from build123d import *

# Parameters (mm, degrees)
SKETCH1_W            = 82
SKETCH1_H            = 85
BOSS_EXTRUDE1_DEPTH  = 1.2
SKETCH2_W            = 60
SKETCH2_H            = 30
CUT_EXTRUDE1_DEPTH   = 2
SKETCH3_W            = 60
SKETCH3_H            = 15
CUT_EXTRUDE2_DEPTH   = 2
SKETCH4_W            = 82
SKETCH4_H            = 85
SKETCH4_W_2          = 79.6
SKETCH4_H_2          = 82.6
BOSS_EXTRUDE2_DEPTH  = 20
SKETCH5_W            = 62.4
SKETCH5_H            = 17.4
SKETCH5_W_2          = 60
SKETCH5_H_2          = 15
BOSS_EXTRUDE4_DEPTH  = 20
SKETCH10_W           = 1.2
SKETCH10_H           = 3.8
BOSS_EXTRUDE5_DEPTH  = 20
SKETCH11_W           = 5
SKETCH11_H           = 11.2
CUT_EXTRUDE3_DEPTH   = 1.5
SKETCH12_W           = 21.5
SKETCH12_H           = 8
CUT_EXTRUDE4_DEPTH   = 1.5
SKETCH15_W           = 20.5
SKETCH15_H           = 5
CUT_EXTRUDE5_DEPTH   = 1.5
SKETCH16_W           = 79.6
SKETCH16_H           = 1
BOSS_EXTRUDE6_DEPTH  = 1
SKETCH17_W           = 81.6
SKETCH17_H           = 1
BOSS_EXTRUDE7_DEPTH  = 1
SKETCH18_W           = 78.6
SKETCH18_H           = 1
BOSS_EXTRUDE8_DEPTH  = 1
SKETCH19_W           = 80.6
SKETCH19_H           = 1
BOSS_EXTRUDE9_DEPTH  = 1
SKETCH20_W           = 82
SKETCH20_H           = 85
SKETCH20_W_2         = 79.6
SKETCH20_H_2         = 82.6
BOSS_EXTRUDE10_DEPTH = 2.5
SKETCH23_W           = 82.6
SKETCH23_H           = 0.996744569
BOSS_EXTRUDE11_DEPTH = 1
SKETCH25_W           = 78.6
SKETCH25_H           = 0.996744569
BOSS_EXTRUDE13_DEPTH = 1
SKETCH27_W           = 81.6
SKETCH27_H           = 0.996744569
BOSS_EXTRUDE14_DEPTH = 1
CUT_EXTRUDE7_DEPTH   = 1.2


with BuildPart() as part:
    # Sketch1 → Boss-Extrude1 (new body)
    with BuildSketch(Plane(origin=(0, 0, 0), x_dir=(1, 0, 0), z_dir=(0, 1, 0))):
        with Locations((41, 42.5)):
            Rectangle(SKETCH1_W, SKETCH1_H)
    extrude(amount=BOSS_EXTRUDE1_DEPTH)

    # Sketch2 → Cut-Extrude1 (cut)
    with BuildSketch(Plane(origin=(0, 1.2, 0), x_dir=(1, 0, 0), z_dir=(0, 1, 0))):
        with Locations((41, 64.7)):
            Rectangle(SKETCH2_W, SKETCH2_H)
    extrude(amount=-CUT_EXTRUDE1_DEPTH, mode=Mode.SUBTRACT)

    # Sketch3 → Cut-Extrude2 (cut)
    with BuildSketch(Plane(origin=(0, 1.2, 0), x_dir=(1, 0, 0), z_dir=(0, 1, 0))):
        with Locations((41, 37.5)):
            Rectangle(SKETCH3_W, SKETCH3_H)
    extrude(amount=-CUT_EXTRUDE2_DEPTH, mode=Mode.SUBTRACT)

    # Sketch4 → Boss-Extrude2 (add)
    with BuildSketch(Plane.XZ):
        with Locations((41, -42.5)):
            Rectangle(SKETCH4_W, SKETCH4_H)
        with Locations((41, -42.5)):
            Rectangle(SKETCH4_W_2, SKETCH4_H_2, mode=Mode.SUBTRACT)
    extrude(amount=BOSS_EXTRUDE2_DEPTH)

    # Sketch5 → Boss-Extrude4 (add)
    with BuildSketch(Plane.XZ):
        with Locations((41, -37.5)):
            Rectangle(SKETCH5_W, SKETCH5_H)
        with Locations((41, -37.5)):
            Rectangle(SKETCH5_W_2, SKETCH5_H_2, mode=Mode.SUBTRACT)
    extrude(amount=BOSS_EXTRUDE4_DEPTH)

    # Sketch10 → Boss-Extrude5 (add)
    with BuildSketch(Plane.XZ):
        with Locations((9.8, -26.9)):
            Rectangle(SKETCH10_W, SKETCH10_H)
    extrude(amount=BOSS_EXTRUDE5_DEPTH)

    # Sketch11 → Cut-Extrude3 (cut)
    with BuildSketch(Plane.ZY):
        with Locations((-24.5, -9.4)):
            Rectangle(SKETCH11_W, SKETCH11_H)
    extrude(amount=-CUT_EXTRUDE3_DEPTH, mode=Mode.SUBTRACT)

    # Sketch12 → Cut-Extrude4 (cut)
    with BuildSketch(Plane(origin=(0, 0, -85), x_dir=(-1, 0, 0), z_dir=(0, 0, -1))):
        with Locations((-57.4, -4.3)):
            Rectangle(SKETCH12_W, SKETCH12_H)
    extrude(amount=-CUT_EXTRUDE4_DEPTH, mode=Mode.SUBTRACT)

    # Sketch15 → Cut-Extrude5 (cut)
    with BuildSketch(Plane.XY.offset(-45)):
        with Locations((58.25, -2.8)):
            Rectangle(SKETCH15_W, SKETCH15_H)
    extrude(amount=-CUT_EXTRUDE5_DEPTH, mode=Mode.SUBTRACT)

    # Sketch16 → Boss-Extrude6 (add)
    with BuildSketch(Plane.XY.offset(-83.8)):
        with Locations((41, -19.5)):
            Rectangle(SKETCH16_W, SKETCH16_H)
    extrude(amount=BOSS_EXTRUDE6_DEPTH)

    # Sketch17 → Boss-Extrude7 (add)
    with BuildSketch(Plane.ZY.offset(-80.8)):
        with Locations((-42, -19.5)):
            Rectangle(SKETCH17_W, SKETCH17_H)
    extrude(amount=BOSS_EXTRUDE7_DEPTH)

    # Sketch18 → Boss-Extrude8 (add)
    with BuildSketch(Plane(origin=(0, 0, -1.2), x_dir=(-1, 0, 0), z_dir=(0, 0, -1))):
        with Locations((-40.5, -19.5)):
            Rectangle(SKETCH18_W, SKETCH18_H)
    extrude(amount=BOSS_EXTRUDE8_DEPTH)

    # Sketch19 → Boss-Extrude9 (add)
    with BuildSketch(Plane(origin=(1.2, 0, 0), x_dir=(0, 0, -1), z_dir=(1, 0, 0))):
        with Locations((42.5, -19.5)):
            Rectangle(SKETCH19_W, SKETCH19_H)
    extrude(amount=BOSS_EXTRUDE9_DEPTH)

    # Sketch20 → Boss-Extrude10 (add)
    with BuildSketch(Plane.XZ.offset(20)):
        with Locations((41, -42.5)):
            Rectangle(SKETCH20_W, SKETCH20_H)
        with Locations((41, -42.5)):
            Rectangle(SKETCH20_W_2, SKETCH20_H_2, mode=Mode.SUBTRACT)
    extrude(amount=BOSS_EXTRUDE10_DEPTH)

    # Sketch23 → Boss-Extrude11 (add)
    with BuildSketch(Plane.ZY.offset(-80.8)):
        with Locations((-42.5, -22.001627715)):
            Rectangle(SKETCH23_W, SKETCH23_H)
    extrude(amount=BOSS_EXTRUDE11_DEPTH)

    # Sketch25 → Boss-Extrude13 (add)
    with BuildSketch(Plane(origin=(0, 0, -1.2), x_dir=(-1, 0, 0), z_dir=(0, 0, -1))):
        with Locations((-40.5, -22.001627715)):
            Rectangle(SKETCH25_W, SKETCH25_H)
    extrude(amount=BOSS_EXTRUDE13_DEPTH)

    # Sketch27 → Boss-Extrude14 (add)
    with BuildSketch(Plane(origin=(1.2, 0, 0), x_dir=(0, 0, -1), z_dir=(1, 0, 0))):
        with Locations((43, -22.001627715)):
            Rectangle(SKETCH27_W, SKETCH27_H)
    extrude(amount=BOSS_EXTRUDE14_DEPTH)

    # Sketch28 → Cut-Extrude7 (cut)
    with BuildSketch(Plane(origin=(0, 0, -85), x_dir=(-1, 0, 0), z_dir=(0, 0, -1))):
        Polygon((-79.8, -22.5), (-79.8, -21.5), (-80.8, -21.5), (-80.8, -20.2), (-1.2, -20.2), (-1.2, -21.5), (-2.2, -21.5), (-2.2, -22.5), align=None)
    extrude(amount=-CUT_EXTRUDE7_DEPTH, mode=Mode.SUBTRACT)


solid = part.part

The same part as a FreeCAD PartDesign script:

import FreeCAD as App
import Part
import Sketcher

V = App.Vector
Q = App.Units.Quantity


def add_polygon(sketch, points):
    """Adds a closed chain of lines whose ends are joined by coincident constraints."""
    first, n = sketch.GeometryCount, len(points)
    for a, b in zip(points, points[1:] + points[:1]):
        sketch.addGeometry(Part.LineSegment(App.Vector(*a, 0), App.Vector(*b, 0)), False)
    for i in range(n):
        sketch.addConstraint(Sketcher.Constraint("Coincident", first + i, 2, first + (i + 1) % n, 1))

doc = App.newDocument("Part")
params = doc.addObject("Spreadsheet::Sheet", "Params")
for row, (alias, value) in enumerate([
    ("sketch1_width", "82 mm"),
    ("sketch1_height", "85 mm"),
    ("pad1_length", "1.2 mm"),
    ("sketch2_width", "60 mm"),
    ("sketch2_height", "30 mm"),
    ("pocket1_length", "2 mm"),
    ("sketch3_width", "60 mm"),
    ("sketch3_height", "15 mm"),
    ("pocket2_length", "2 mm"),
    ("sketch4_width", "82 mm"),
    ("sketch4_height", "85 mm"),
    ("sketch4_width2", "79.6 mm"),
    ("sketch4_height2", "82.6 mm"),
    ("pad2_length", "20 mm"),
    ("sketch5_width", "60 mm"),
    ("sketch5_height", "15 mm"),
    ("sketch5_width2", "62.4 mm"),
    ("sketch5_height2", "17.4 mm"),
    ("pad3_length", "20 mm"),
    ("sketch6_width", "1.2 mm"),
    ("sketch6_height", "3.8 mm"),
    ("pad4_length", "20 mm"),
    ("sketch7_height", "5 mm"),
    ("sketch7_width", "11.2 mm"),
    ("pocket3_length", "1.5 mm"),
    ("sketch8_height", "8 mm"),
    ("sketch8_width", "21.5 mm"),
    ("pocket4_length", "1.5 mm"),
    ("sketch9_height", "5 mm"),
    ("sketch9_width", "20.5 mm"),
    ("pocket5_length", "1.5 mm"),
    ("sketch10_height", "1 mm"),
    ("sketch10_width", "79.6 mm"),
    ("pad5_length", "1 mm"),
    ("sketch11_width", "1 mm"),
    ("sketch11_height", "81.6 mm"),
    ("pad6_length", "1 mm"),
    ("sketch12_height", "1 mm"),
    ("sketch12_width", "78.6 mm"),
    ("pad7_length", "1 mm"),
    ("sketch13_width", "1 mm"),
    ("sketch13_height", "80.6 mm"),
    ("pad8_length", "1 mm"),
    ("sketch14_width", "82 mm"),
    ("sketch14_height", "85 mm"),
    ("sketch14_width2", "79.6 mm"),
    ("sketch14_height2", "82.6 mm"),
    ("pad9_length", "2.5 mm"),
    ("sketch15_height", "82.6 mm"),
    ("pad10_length", "1 mm"),
    ("sketch16_width", "78.6 mm"),
    ("pad11_length", "1 mm"),
    ("sketch17_height", "81.6 mm"),
    ("pad12_length", "1 mm"),
    ("sketch18_width", "1 mm"),
    ("sketch18_width2", "77.6 mm"),
    ("sketch18_height", "1.3 mm"),
    ("pocket6_length", "1.2 mm"),
], start=1):
    params.set(f"A{row}", alias)
    params.set(f"B{row}", "=" + value)
    params.setAlias(f"B{row}", alias)

body = doc.addObject("PartDesign::Body", "Body")

sketch1 = body.newObject("Sketcher::SketchObject", "Sketch")
sketch1.AttachmentSupport = (doc.getObject("XZ_Plane"), [""])
sketch1.MapMode = "FlatFace"
add_polygon(sketch1, [(0, -85), (0, 0), (82, 0), (82, -85)])
sketch1.addConstraint(Sketcher.Constraint("Vertical", 0))
sketch1.addConstraint(Sketcher.Constraint("Horizontal", 1))
sketch1.addConstraint(Sketcher.Constraint("Vertical", 2))
sketch1.addConstraint(Sketcher.Constraint("Horizontal", 3))
sketch1.addConstraint(Sketcher.Constraint("Coincident", 0, 2, -1, 1))
sketch1.addConstraint(Sketcher.Constraint("DistanceX", 1, 1, 1, 2, Q("82 mm")))
sketch1.addConstraint(Sketcher.Constraint("DistanceY", 0, 1, 0, 2, Q("85 mm")))
sketch1.setExpression("Constraints[9]", "Params.sketch1_width")
sketch1.setExpression("Constraints[10]", "Params.sketch1_height")
pad1 = body.newObject("PartDesign::Pad", "Pad")
pad1.Profile = sketch1
pad1.setExpression("Length", "Params.pad1_length")
pad1.Reversed = True

sketch2 = body.newObject("Sketcher::SketchObject", "Sketch001")
sketch2.AttachmentSupport = (doc.getObject("XZ_Plane"), [""])
sketch2.MapMode = "FlatFace"
sketch2.AttachmentOffset = App.Placement(V(0, 0, -1.2), App.Rotation())
add_polygon(sketch2, [(11, -79.7), (11, -49.7), (71, -49.7), (71, -79.7)])
sketch2.addConstraint(Sketcher.Constraint("Vertical", 0))
sketch2.addConstraint(Sketcher.Constraint("Horizontal", 1))
sketch2.addConstraint(Sketcher.Constraint("Vertical", 2))
sketch2.addConstraint(Sketcher.Constraint("Horizontal", 3))
sketch2.addConstraint(Sketcher.Constraint("DistanceX", 1, 1, 1, 2, Q("60 mm")))
sketch2.addConstraint(Sketcher.Constraint("DistanceY", 0, 1, 0, 2, Q("30 mm")))
sketch2.addConstraint(Sketcher.Constraint("DistanceX", -1, 1, 0, 2, Q("11 mm")))
sketch2.addConstraint(Sketcher.Constraint("DistanceY", 0, 2, -1, 1, Q("49.7 mm")))
sketch2.setExpression("Constraints[8]", "Params.sketch2_width")
sketch2.setExpression("Constraints[9]", "Params.sketch2_height")
pocket1 = body.newObject("PartDesign::Pocket", "Pocket")
pocket1.Profile = sketch2
pocket1.setExpression("Length", "Params.pocket1_length")
pocket1.Reversed = True

sketch3 = body.newObject("Sketcher::SketchObject", "Sketch002")
sketch3.AttachmentSupport = (doc.getObject("XZ_Plane"), [""])
sketch3.MapMode = "FlatFace"
sketch3.AttachmentOffset = App.Placement(V(0, 0, -1.2), App.Rotation())
add_polygon(sketch3, [(11, -45), (11, -30), (71, -30), (71, -45)])
sketch3.addConstraint(Sketcher.Constraint("Vertical", 0))
sketch3.addConstraint(Sketcher.Constraint("Horizontal", 1))
sketch3.addConstraint(Sketcher.Constraint("Vertical", 2))
sketch3.addConstraint(Sketcher.Constraint("Horizontal", 3))
sketch3.addConstraint(Sketcher.Constraint("DistanceX", 1, 1, 1, 2, Q("60 mm")))
sketch3.addConstraint(Sketcher.Constraint("DistanceY", 0, 1, 0, 2, Q("15 mm")))
sketch3.addConstraint(Sketcher.Constraint("DistanceX", -1, 1, 0, 2, Q("11 mm")))
sketch3.addConstraint(Sketcher.Constraint("DistanceY", 0, 2, -1, 1, Q("30 mm")))
sketch3.setExpression("Constraints[8]", "Params.sketch3_width")
sketch3.setExpression("Constraints[9]", "Params.sketch3_height")
pocket2 = body.newObject("PartDesign::Pocket", "Pocket001")
pocket2.Profile = sketch3
pocket2.setExpression("Length", "Params.pocket2_length")
pocket2.Reversed = True

sketch4 = body.newObject("Sketcher::SketchObject", "Sketch003")
sketch4.AttachmentSupport = (doc.getObject("XZ_Plane"), [""])
sketch4.MapMode = "FlatFace"
add_polygon(sketch4, [(0, 0), (0, -85), (82, -85), (82, 0)])
add_polygon(sketch4, [(80.8, -83.8), (1.2, -83.8), (1.2, -1.2), (80.8, -1.2)])
sketch4.addConstraint(Sketcher.Constraint("Vertical", 0))
sketch4.addConstraint(Sketcher.Constraint("Horizontal", 1))
sketch4.addConstraint(Sketcher.Constraint("Vertical", 2))
sketch4.addConstraint(Sketcher.Constraint("Horizontal", 3))
sketch4.addConstraint(Sketcher.Constraint("Horizontal", 4))
sketch4.addConstraint(Sketcher.Constraint("Vertical", 5))
sketch4.addConstraint(Sketcher.Constraint("Horizontal", 6))
sketch4.addConstraint(Sketcher.Constraint("Vertical", 7))
sketch4.addConstraint(Sketcher.Constraint("Coincident", 3, 2, -1, 1))
sketch4.addConstraint(Sketcher.Constraint("DistanceX", 1, 1, 1, 2, Q("82 mm")))
sketch4.addConstraint(Sketcher.Constraint("DistanceY", 0, 2, 0, 1, Q("85 mm")))
sketch4.addConstraint(Sketcher.Constraint("DistanceX", 4, 2, 4, 1, Q("79.6 mm")))
sketch4.addConstraint(Sketcher.Constraint("DistanceY", 5, 1, 5, 2, Q("82.6 mm")))
sketch4.addConstraint(Sketcher.Constraint("DistanceX", -1, 1, 4, 2, Q("1.2 mm")))
sketch4.addConstraint(Sketcher.Constraint("DistanceY", 4, 2, -1, 1, Q("83.8 mm")))
sketch4.setExpression("Constraints[17]", "Params.sketch4_width")
sketch4.setExpression("Constraints[18]", "Params.sketch4_height")
sketch4.setExpression("Constraints[19]", "Params.sketch4_width2")
sketch4.setExpression("Constraints[20]", "Params.sketch4_height2")
pad2 = body.newObject("PartDesign::Pad", "Pad001")
pad2.Profile = sketch4
pad2.setExpression("Length", "Params.pad2_length")

sketch5 = body.newObject("Sketcher::SketchObject", "Sketch004")
sketch5.AttachmentSupport = (doc.getObject("XZ_Plane"), [""])
sketch5.MapMode = "FlatFace"
add_polygon(sketch5, [(9.8, -28.8), (9.8, -46.2), (72.2, -46.2), (72.2, -28.8)])
add_polygon(sketch5, [(71, -45), (11, -45), (11, -30), (71, -30)])
sketch5.addConstraint(Sketcher.Constraint("Vertical", 0))
sketch5.addConstraint(Sketcher.Constraint("Horizontal", 1))
sketch5.addConstraint(Sketcher.Constraint("Vertical", 2))
sketch5.addConstraint(Sketcher.Constraint("Horizontal", 3))
sketch5.addConstraint(Sketcher.Constraint("Horizontal", 4))
sketch5.addConstraint(Sketcher.Constraint("Vertical", 5))
sketch5.addConstraint(Sketcher.Constraint("Horizontal", 6))
sketch5.addConstraint(Sketcher.Constraint("Vertical", 7))
sketch5.addConstraint(Sketcher.Constraint("DistanceX", 4, 2, 4, 1, Q("60 mm")))
sketch5.addConstraint(Sketcher.Constraint("DistanceY", 5, 1, 5, 2, Q("15 mm")))
sketch5.addConstraint(Sketcher.Constraint("DistanceX", 1, 1, 1, 2, Q("62.4 mm")))
sketch5.addConstraint(Sketcher.Constraint("DistanceY", 0, 2, 0, 1, Q("17.4 mm")))
sketch5.addConstraint(Sketcher.Constraint("DistanceX", -1, 1, 4, 2, Q("11 mm")))
sketch5.addConstraint(Sketcher.Constraint("DistanceY", 4, 2, -1, 1, Q("45 mm")))
sketch5.addConstraint(Sketcher.Constraint("DistanceX", -1, 1, 0, 2, Q("9.8 mm")))
sketch5.addConstraint(Sketcher.Constraint("DistanceY", 0, 2, -1, 1, Q("46.2 mm")))
sketch5.setExpression("Constraints[16]", "Params.sketch5_width")
sketch5.setExpression("Constraints[17]", "Params.sketch5_height")
sketch5.setExpression("Constraints[18]", "Params.sketch5_width2")
sketch5.setExpression("Constraints[19]", "Params.sketch5_height2")
pad3 = body.newObject("PartDesign::Pad", "Pad002")
pad3.Profile = sketch5
pad3.setExpression("Length", "Params.pad3_length")

sketch6 = body.newObject("Sketcher::SketchObject", "Sketch005")
sketch6.AttachmentSupport = (doc.getObject("XZ_Plane"), [""])
sketch6.MapMode = "FlatFace"
add_polygon(sketch6, [(9.2, -25), (9.2, -28.8), (10.4, -28.8), (10.4, -25)])
sketch6.addConstraint(Sketcher.Constraint("Vertical", 0))
sketch6.addConstraint(Sketcher.Constraint("Horizontal", 1))
sketch6.addConstraint(Sketcher.Constraint("Vertical", 2))
sketch6.addConstraint(Sketcher.Constraint("Horizontal", 3))
sketch6.addConstraint(Sketcher.Constraint("DistanceX", 1, 1, 1, 2, Q("1.2 mm")))
sketch6.addConstraint(Sketcher.Constraint("DistanceY", 0, 2, 0, 1, Q("3.8 mm")))
sketch6.addConstraint(Sketcher.Constraint("DistanceY", 2, 2, -1, 1, Q("25 mm")))
sketch6.addConstraint(Sketcher.Constraint("DistanceX", -1, 1, 0, 2, Q("9.2 mm")))
sketch6.setExpression("Constraints[8]", "Params.sketch6_width")
sketch6.setExpression("Constraints[9]", "Params.sketch6_height")
pad4 = body.newObject("PartDesign::Pad", "Pad003")
pad4.Profile = sketch6
pad4.setExpression("Length", "Params.pad4_length")

sketch7 = body.newObject("Sketcher::SketchObject", "Sketch006")
sketch7.AttachmentSupport = (doc.getObject("YZ_Plane"), [""])
sketch7.MapMode = "FlatFace"
add_polygon(sketch7, [(-3.8, -27), (-15, -27), (-15, -22), (-3.8, -22)])
sketch7.addConstraint(Sketcher.Constraint("Horizontal", 0))
sketch7.addConstraint(Sketcher.Constraint("Vertical", 1))
sketch7.addConstraint(Sketcher.Constraint("Horizontal", 2))
sketch7.addConstraint(Sketcher.Constraint("Vertical", 3))
sketch7.addConstraint(Sketcher.Constraint("DistanceY", 1, 1, 1, 2, Q("5 mm")))
sketch7.addConstraint(Sketcher.Constraint("DistanceX", 0, 2, 0, 1, Q("11.2 mm")))
sketch7.addConstraint(Sketcher.Constraint("DistanceX", 0, 2, -1, 1, Q("15 mm")))
sketch7.addConstraint(Sketcher.Constraint("DistanceY", 0, 2, -1, 1, Q("27 mm")))
sketch7.setExpression("Constraints[8]", "Params.sketch7_height")
sketch7.setExpression("Constraints[9]", "Params.sketch7_width")
pocket3 = body.newObject("PartDesign::Pocket", "Pocket002")
pocket3.Profile = sketch7
pocket3.setExpression("Length", "Params.pocket3_length")
pocket3.Reversed = True

sketch8 = body.newObject("Sketcher::SketchObject", "Sketch007")
sketch8.AttachmentSupport = (doc.getObject("XY_Plane"), [""])
sketch8.MapMode = "FlatFace"
sketch8.AttachmentOffset = App.Placement(V(0, 0, -85), App.Rotation())
add_polygon(sketch8, [(68.15, -0.3), (68.15, -8.3), (46.65, -8.3), (46.65, -0.3)])
sketch8.addConstraint(Sketcher.Constraint("Vertical", 0))
sketch8.addConstraint(Sketcher.Constraint("Horizontal", 1))
sketch8.addConstraint(Sketcher.Constraint("Vertical", 2))
sketch8.addConstraint(Sketcher.Constraint("Horizontal", 3))
sketch8.addConstraint(Sketcher.Constraint("DistanceY", 0, 2, 0, 1, Q("8 mm")))
sketch8.addConstraint(Sketcher.Constraint("DistanceX", 1, 2, 1, 1, Q("21.5 mm")))
sketch8.addConstraint(Sketcher.Constraint("DistanceY", 0, 2, -1, 1, Q("8.3 mm")))
sketch8.addConstraint(Sketcher.Constraint("DistanceX", -1, 1, 0, 2, Q("68.15 mm")))
sketch8.setExpression("Constraints[8]", "Params.sketch8_height")
sketch8.setExpression("Constraints[9]", "Params.sketch8_width")
pocket4 = body.newObject("PartDesign::Pocket", "Pocket003")
pocket4.Profile = sketch8
pocket4.setExpression("Length", "Params.pocket4_length")
pocket4.Reversed = True

sketch9 = body.newObject("Sketcher::SketchObject", "Sketch008")
sketch9.AttachmentSupport = (doc.getObject("XY_Plane"), [""])
sketch9.MapMode = "FlatFace"
sketch9.AttachmentOffset = App.Placement(V(0, 0, -45), App.Rotation())
add_polygon(sketch9, [(48, -0.3), (48, -5.3), (68.5, -5.3), (68.5, -0.3)])
sketch9.addConstraint(Sketcher.Constraint("Vertical", 0))
sketch9.addConstraint(Sketcher.Constraint("Horizontal", 1))
sketch9.addConstraint(Sketcher.Constraint("Vertical", 2))
sketch9.addConstraint(Sketcher.Constraint("Horizontal", 3))
sketch9.addConstraint(Sketcher.Constraint("DistanceY", 0, 2, 0, 1, Q("5 mm")))
sketch9.addConstraint(Sketcher.Constraint("DistanceX", 1, 1, 1, 2, Q("20.5 mm")))
sketch9.addConstraint(Sketcher.Constraint("DistanceX", -1, 1, 0, 2, Q("48 mm")))
sketch9.addConstraint(Sketcher.Constraint("DistanceY", 0, 2, -1, 1, Q("5.3 mm")))
sketch9.setExpression("Constraints[8]", "Params.sketch9_height")
sketch9.setExpression("Constraints[9]", "Params.sketch9_width")
pocket5 = body.newObject("PartDesign::Pocket", "Pocket004")
pocket5.Profile = sketch9
pocket5.setExpression("Length", "Params.pocket5_length")

sketch10 = body.newObject("Sketcher::SketchObject", "Sketch009")
sketch10.AttachmentSupport = (doc.getObject("XY_Plane"), [""])
sketch10.MapMode = "FlatFace"
sketch10.AttachmentOffset = App.Placement(V(0, 0, -83.8), App.Rotation())
add_polygon(sketch10, [(1.2, -19), (1.2, -20), (80.8, -20), (80.8, -19)])
sketch10.addConstraint(Sketcher.Constraint("Vertical", 0))
sketch10.addConstraint(Sketcher.Constraint("Horizontal", 1))
sketch10.addConstraint(Sketcher.Constraint("Vertical", 2))
sketch10.addConstraint(Sketcher.Constraint("Horizontal", 3))
sketch10.addConstraint(Sketcher.Constraint("DistanceY", 0, 2, 0, 1, Q("1 mm")))
sketch10.addConstraint(Sketcher.Constraint("DistanceX", 1, 1, 1, 2, Q("79.6 mm")))
sketch10.addConstraint(Sketcher.Constraint("DistanceY", 0, 2, -1, 1, Q("20 mm")))
sketch10.addConstraint(Sketcher.Constraint("DistanceX", -1, 1, 0, 2, Q("1.2 mm")))
sketch10.setExpression("Constraints[8]", "Params.sketch10_height")
sketch10.setExpression("Constraints[9]", "Params.sketch10_width")
pad5 = body.newObject("PartDesign::Pad", "Pad004")
pad5.Profile = sketch10
pad5.setExpression("Length", "Params.pad5_length")

sketch11 = body.newObject("Sketcher::SketchObject", "Sketch010")
sketch11.AttachmentSupport = (doc.getObject("YZ_Plane"), [""])
sketch11.MapMode = "FlatFace"
sketch11.AttachmentOffset = App.Placement(V(0, 0, 80.8), App.Rotation())
add_polygon(sketch11, [(-19, -82.8), (-20, -82.8), (-20, -1.2), (-19, -1.2)])
sketch11.addConstraint(Sketcher.Constraint("Horizontal", 0))
sketch11.addConstraint(Sketcher.Constraint("Vertical", 1))
sketch11.addConstraint(Sketcher.Constraint("Horizontal", 2))
sketch11.addConstraint(Sketcher.Constraint("Vertical", 3))
sketch11.addConstraint(Sketcher.Constraint("DistanceX", 0, 2, 0, 1, Q("1 mm")))
sketch11.addConstraint(Sketcher.Constraint("DistanceY", 1, 1, 1, 2, Q("81.6 mm")))
sketch11.addConstraint(Sketcher.Constraint("DistanceX", 0, 2, -1, 1, Q("20 mm")))
sketch11.addConstraint(Sketcher.Constraint("DistanceY", 0, 2, -1, 1, Q("82.8 mm")))
sketch11.setExpression("Constraints[8]", "Params.sketch11_width")
sketch11.setExpression("Constraints[9]", "Params.sketch11_height")
pad6 = body.newObject("PartDesign::Pad", "Pad005")
pad6.Profile = sketch11
pad6.setExpression("Length", "Params.pad6_length")
pad6.Reversed = True

sketch12 = body.newObject("Sketcher::SketchObject", "Sketch011")
sketch12.AttachmentSupport = (doc.getObject("XY_Plane"), [""])
sketch12.MapMode = "FlatFace"
sketch12.AttachmentOffset = App.Placement(V(0, 0, -1.2), App.Rotation())
add_polygon(sketch12, [(79.8, -19), (79.8, -20), (1.2, -20), (1.2, -19)])
sketch12.addConstraint(Sketcher.Constraint("Vertical", 0))
sketch12.addConstraint(Sketcher.Constraint("Horizontal", 1))
sketch12.addConstraint(Sketcher.Constraint("Vertical", 2))
sketch12.addConstraint(Sketcher.Constraint("Horizontal", 3))
sketch12.addConstraint(Sketcher.Constraint("DistanceY", 0, 2, 0, 1, Q("1 mm")))
sketch12.addConstraint(Sketcher.Constraint("DistanceX", 1, 2, 1, 1, Q("78.6 mm")))
sketch12.addConstraint(Sketcher.Constraint("DistanceY", 0, 2, -1, 1, Q("20 mm")))
sketch12.addConstraint(Sketcher.Constraint("DistanceX", -1, 1, 0, 2, Q("79.8 mm")))
sketch12.setExpression("Constraints[8]", "Params.sketch12_height")
sketch12.setExpression("Constraints[9]", "Params.sketch12_width")
pad7 = body.newObject("PartDesign::Pad", "Pad006")
pad7.Profile = sketch12
pad7.setExpression("Length", "Params.pad7_length")
pad7.Reversed = True

sketch13 = body.newObject("Sketcher::SketchObject", "Sketch012")
sketch13.AttachmentSupport = (doc.getObject("YZ_Plane"), [""])
sketch13.MapMode = "FlatFace"
sketch13.AttachmentOffset = App.Placement(V(0, 0, 1.2), App.Rotation())
add_polygon(sketch13, [(-19, -2.2), (-20, -2.2), (-20, -82.8), (-19, -82.8)])
sketch13.addConstraint(Sketcher.Constraint("Horizontal", 0))
sketch13.addConstraint(Sketcher.Constraint("Vertical", 1))
sketch13.addConstraint(Sketcher.Constraint("Horizontal", 2))
sketch13.addConstraint(Sketcher.Constraint("Vertical", 3))
sketch13.addConstraint(Sketcher.Constraint("DistanceX", 0, 2, 0, 1, Q("1 mm")))
sketch13.addConstraint(Sketcher.Constraint("DistanceY", 1, 2, 1, 1, Q("80.6 mm")))
sketch13.addConstraint(Sketcher.Constraint("DistanceX", 0, 2, -1, 1, Q("20 mm")))
sketch13.addConstraint(Sketcher.Constraint("DistanceY", 0, 2, -1, 1, Q("2.2 mm")))
sketch13.setExpression("Constraints[8]", "Params.sketch13_width")
sketch13.setExpression("Constraints[9]", "Params.sketch13_height")
pad8 = body.newObject("PartDesign::Pad", "Pad007")
pad8.Profile = sketch13
pad8.setExpression("Length", "Params.pad8_length")

sketch14 = body.newObject("Sketcher::SketchObject", "Sketch013")
sketch14.AttachmentSupport = (doc.getObject("XZ_Plane"), [""])
sketch14.MapMode = "FlatFace"
sketch14.AttachmentOffset = App.Placement(V(0, 0, 20), App.Rotation())
add_polygon(sketch14, [(0, 0), (0, -85), (82, -85), (82, 0)])
add_polygon(sketch14, [(80.8, -83.8), (1.2, -83.8), (1.2, -1.2), (80.8, -1.2)])
sketch14.addConstraint(Sketcher.Constraint("Vertical", 0))
sketch14.addConstraint(Sketcher.Constraint("Horizontal", 1))
sketch14.addConstraint(Sketcher.Constraint("Vertical", 2))
sketch14.addConstraint(Sketcher.Constraint("Horizontal", 3))
sketch14.addConstraint(Sketcher.Constraint("Horizontal", 4))
sketch14.addConstraint(Sketcher.Constraint("Vertical", 5))
sketch14.addConstraint(Sketcher.Constraint("Horizontal", 6))
sketch14.addConstraint(Sketcher.Constraint("Vertical", 7))
sketch14.addConstraint(Sketcher.Constraint("Coincident", 3, 2, -1, 1))
sketch14.addConstraint(Sketcher.Constraint("DistanceX", 1, 1, 1, 2, Q("82 mm")))
sketch14.addConstraint(Sketcher.Constraint("DistanceY", 0, 2, 0, 1, Q("85 mm")))
sketch14.addConstraint(Sketcher.Constraint("DistanceX", 4, 2, 4, 1, Q("79.6 mm")))
sketch14.addConstraint(Sketcher.Constraint("DistanceY", 5, 1, 5, 2, Q("82.6 mm")))
sketch14.addConstraint(Sketcher.Constraint("DistanceX", -1, 1, 4, 2, Q("1.2 mm")))
sketch14.addConstraint(Sketcher.Constraint("DistanceY", 4, 2, -1, 1, Q("83.8 mm")))
sketch14.setExpression("Constraints[17]", "Params.sketch14_width")
sketch14.setExpression("Constraints[18]", "Params.sketch14_height")
sketch14.setExpression("Constraints[19]", "Params.sketch14_width2")
sketch14.setExpression("Constraints[20]", "Params.sketch14_height2")
pad9 = body.newObject("PartDesign::Pad", "Pad008")
pad9.Profile = sketch14
pad9.setExpression("Length", "Params.pad9_length")

sketch15 = body.newObject("Sketcher::SketchObject", "Sketch014")
sketch15.AttachmentSupport = (doc.getObject("YZ_Plane"), [""])
sketch15.MapMode = "FlatFace"
sketch15.AttachmentOffset = App.Placement(V(0, 0, 80.8), App.Rotation())
add_polygon(sketch15, [(-21.503255, -83.8), (-22.5, -83.8), (-22.5, -1.2), (-21.503255, -1.2)])
sketch15.addConstraint(Sketcher.Constraint("Horizontal", 0))
sketch15.addConstraint(Sketcher.Constraint("Vertical", 1))
sketch15.addConstraint(Sketcher.Constraint("Horizontal", 2))
sketch15.addConstraint(Sketcher.Constraint("Vertical", 3))
sketch15.addConstraint(Sketcher.Constraint("DistanceY", 1, 1, 1, 2, Q("82.6 mm")))
sketch15.addConstraint(Sketcher.Constraint("DistanceX", 0, 2, -1, 1, Q("22.5 mm")))
sketch15.addConstraint(Sketcher.Constraint("DistanceY", 0, 2, -1, 1, Q("83.8 mm")))
sketch15.addConstraint(Sketcher.Constraint("DistanceX", 0, 2, 0, 1, Q("0.996745 mm")))
sketch15.setExpression("Constraints[8]", "Params.sketch15_height")
pad10 = body.newObject("PartDesign::Pad", "Pad009")
pad10.Profile = sketch15
pad10.setExpression("Length", "Params.pad10_length")
pad10.Reversed = True

sketch16 = body.newObject("Sketcher::SketchObject", "Sketch015")
sketch16.AttachmentSupport = (doc.getObject("XY_Plane"), [""])
sketch16.MapMode = "FlatFace"
sketch16.AttachmentOffset = App.Placement(V(0, 0, -1.2), App.Rotation())
add_polygon(sketch16, [(79.8, -21.503255), (79.8, -22.5), (1.2, -22.5), (1.2, -21.503255)])
sketch16.addConstraint(Sketcher.Constraint("Vertical", 0))
sketch16.addConstraint(Sketcher.Constraint("Horizontal", 1))
sketch16.addConstraint(Sketcher.Constraint("Vertical", 2))
sketch16.addConstraint(Sketcher.Constraint("Horizontal", 3))
sketch16.addConstraint(Sketcher.Constraint("DistanceX", 1, 2, 1, 1, Q("78.6 mm")))
sketch16.addConstraint(Sketcher.Constraint("DistanceX", -1, 1, 0, 2, Q("79.8 mm")))
sketch16.addConstraint(Sketcher.Constraint("DistanceY", 0, 2, -1, 1, Q("22.5 mm")))
sketch16.addConstraint(Sketcher.Constraint("DistanceY", 0, 2, 0, 1, Q("0.996745 mm")))
sketch16.setExpression("Constraints[8]", "Params.sketch16_width")
pad11 = body.newObject("PartDesign::Pad", "Pad010")
pad11.Profile = sketch16
pad11.setExpression("Length", "Params.pad11_length")
pad11.Reversed = True

sketch17 = body.newObject("Sketcher::SketchObject", "Sketch016")
sketch17.AttachmentSupport = (doc.getObject("YZ_Plane"), [""])
sketch17.MapMode = "FlatFace"
sketch17.AttachmentOffset = App.Placement(V(0, 0, 1.2), App.Rotation())
add_polygon(sketch17, [(-21.503255, -2.2), (-22.5, -2.2), (-22.5, -83.8), (-21.503255, -83.8)])
sketch17.addConstraint(Sketcher.Constraint("Horizontal", 0))
sketch17.addConstraint(Sketcher.Constraint("Vertical", 1))
sketch17.addConstraint(Sketcher.Constraint("Horizontal", 2))
sketch17.addConstraint(Sketcher.Constraint("Vertical", 3))
sketch17.addConstraint(Sketcher.Constraint("DistanceY", 1, 2, 1, 1, Q("81.6 mm")))
sketch17.addConstraint(Sketcher.Constraint("DistanceX", 0, 2, -1, 1, Q("22.5 mm")))
sketch17.addConstraint(Sketcher.Constraint("DistanceY", 0, 2, -1, 1, Q("2.2 mm")))
sketch17.addConstraint(Sketcher.Constraint("DistanceX", 0, 2, 0, 1, Q("0.996745 mm")))
sketch17.setExpression("Constraints[8]", "Params.sketch17_height")
pad12 = body.newObject("PartDesign::Pad", "Pad011")
pad12.Profile = sketch17
pad12.setExpression("Length", "Params.pad12_length")

sketch18 = body.newObject("Sketcher::SketchObject", "Sketch017")
sketch18.AttachmentSupport = (doc.getObject("XY_Plane"), [""])
sketch18.MapMode = "FlatFace"
sketch18.AttachmentOffset = App.Placement(V(0, 0, -85), App.Rotation())
add_polygon(sketch18, [(79.8, -21.5), (79.8, -22.5), (2.2, -22.5), (2.2, -21.5), (1.2, -21.5), (1.2, -20.2), (80.8, -20.2), (80.8, -21.5)])
sketch18.addConstraint(Sketcher.Constraint("Vertical", 0))
sketch18.addConstraint(Sketcher.Constraint("Horizontal", 1))
sketch18.addConstraint(Sketcher.Constraint("Vertical", 2))
sketch18.addConstraint(Sketcher.Constraint("Horizontal", 3))
sketch18.addConstraint(Sketcher.Constraint("Vertical", 4))
sketch18.addConstraint(Sketcher.Constraint("Horizontal", 5))
sketch18.addConstraint(Sketcher.Constraint("Vertical", 6))
sketch18.addConstraint(Sketcher.Constraint("Horizontal", 7))
sketch18.addConstraint(Sketcher.Constraint("Horizontal", 3, 2, 6, 2))
sketch18.addConstraint(Sketcher.Constraint("Equal", 3, 7))
sketch18.addConstraint(Sketcher.Constraint("Equal", 7, 0))
sketch18.addConstraint(Sketcher.Constraint("DistanceX", 3, 2, 3, 1, Q("1 mm")))
sketch18.addConstraint(Sketcher.Constraint("DistanceX", 1, 2, 1, 1, Q("77.6 mm")))
sketch18.addConstraint(Sketcher.Constraint("DistanceY", 4, 1, 4, 2, Q("1.3 mm")))
sketch18.addConstraint(Sketcher.Constraint("DistanceX", -1, 1, 0, 2, Q("79.8 mm")))
sketch18.addConstraint(Sketcher.Constraint("DistanceY", 0, 2, -1, 1, Q("22.5 mm")))
sketch18.setExpression("Constraints[19]", "Params.sketch18_width")
sketch18.setExpression("Constraints[20]", "Params.sketch18_width2")
sketch18.setExpression("Constraints[21]", "Params.sketch18_height")
pocket6 = body.newObject("PartDesign::Pocket", "Pocket005")
pocket6.Profile = sketch18
pocket6.setExpression("Length", "Params.pocket6_length")
pocket6.Reversed = True

doc.recompute()
